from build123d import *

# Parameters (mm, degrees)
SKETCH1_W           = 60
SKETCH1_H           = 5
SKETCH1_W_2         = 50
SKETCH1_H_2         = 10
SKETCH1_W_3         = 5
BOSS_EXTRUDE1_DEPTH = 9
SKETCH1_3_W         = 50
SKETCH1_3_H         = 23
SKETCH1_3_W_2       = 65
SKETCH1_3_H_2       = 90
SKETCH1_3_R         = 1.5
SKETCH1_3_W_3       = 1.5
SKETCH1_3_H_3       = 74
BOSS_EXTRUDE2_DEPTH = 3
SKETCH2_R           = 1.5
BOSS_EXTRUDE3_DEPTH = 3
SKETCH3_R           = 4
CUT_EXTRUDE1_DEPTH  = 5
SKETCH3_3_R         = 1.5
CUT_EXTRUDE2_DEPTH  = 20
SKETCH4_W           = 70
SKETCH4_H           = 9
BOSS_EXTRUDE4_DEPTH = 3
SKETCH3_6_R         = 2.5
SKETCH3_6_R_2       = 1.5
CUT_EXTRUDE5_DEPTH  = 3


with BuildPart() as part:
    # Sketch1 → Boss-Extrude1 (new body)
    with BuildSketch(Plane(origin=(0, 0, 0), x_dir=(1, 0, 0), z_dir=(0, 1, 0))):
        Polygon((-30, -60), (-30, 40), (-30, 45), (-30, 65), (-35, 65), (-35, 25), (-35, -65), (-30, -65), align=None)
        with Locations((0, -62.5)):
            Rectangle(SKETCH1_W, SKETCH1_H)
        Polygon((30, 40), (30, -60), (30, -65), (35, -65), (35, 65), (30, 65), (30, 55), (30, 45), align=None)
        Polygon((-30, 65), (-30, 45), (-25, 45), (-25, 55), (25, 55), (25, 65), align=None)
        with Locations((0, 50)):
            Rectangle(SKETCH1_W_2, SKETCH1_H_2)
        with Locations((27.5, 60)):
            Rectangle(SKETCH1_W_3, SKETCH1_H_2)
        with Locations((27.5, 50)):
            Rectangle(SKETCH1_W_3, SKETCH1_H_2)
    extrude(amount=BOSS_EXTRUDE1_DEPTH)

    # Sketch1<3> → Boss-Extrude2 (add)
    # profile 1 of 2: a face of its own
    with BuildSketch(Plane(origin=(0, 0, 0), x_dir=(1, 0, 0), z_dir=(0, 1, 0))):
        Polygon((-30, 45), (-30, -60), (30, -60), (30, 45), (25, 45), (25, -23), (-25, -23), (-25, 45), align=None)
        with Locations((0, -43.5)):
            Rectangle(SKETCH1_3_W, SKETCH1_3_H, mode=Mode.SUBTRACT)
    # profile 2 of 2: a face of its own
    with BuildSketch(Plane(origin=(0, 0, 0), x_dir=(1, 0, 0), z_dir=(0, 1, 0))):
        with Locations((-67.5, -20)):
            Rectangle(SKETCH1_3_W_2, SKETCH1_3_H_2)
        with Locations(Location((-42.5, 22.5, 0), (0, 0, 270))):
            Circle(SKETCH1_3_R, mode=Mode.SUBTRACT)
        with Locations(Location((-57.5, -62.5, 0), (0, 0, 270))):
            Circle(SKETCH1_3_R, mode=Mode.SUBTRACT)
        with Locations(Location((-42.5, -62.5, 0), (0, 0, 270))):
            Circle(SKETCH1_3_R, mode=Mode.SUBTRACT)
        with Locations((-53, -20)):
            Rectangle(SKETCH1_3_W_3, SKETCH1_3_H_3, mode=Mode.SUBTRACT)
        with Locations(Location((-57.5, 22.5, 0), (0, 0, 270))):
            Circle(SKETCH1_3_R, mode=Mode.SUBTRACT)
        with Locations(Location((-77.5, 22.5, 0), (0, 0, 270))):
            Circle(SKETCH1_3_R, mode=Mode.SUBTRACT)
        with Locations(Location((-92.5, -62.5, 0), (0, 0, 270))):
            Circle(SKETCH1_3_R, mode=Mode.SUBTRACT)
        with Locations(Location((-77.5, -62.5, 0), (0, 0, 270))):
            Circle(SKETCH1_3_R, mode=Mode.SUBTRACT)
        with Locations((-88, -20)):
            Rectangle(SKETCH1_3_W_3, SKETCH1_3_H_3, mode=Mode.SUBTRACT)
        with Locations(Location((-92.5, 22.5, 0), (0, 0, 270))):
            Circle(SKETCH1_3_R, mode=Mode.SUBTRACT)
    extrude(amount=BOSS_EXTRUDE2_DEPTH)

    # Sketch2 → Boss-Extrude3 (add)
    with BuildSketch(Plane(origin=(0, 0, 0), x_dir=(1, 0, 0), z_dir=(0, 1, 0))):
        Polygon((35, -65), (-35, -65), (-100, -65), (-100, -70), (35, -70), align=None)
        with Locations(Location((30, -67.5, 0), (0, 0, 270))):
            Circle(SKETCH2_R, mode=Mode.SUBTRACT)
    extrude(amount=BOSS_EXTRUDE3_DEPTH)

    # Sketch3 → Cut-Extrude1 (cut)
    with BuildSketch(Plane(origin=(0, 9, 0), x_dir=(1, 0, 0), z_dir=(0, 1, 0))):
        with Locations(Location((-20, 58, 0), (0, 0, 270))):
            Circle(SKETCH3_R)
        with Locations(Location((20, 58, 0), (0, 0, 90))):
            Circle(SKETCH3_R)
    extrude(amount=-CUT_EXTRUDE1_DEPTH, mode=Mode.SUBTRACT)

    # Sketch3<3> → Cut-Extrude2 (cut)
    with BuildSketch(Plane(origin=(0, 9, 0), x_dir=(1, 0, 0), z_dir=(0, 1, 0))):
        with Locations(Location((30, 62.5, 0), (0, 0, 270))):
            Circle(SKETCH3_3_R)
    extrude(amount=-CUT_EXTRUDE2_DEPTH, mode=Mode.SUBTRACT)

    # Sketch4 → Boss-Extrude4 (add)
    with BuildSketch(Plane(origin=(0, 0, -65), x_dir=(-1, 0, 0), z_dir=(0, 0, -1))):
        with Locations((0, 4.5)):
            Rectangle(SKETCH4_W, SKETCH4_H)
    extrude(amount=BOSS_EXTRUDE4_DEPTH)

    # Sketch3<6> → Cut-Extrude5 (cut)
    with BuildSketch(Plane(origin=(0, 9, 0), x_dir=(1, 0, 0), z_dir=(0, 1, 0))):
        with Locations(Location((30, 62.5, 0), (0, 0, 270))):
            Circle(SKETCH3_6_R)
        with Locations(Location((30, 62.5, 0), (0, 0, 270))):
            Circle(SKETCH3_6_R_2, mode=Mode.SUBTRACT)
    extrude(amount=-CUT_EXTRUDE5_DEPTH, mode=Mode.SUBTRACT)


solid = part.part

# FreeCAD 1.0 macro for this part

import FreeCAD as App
import Part
import Sketcher
Q = App.Units.Quantity


def add_polygon(sketch, points):
    """Adds a closed chain of lines whose ends are joined by coincident constraints."""
    first, n = sketch.GeometryCount, len(points)
    for a, b in zip(points, points[1:] + points[:1]):
        sketch.addGeometry(Part.LineSegment(App.Vector(*a, 0), App.Vector(*b, 0)), False)
    for i in range(n):
        sketch.addConstraint(Sketcher.Constraint("Coincident", first + i, 2, first + (i + 1) % n, 1))

doc = App.newDocument("Part")
params = doc.addObject("Spreadsheet::Sheet", "Params")
for row, (alias, value) in enumerate([
    ("sketch1_width", "70 mm"),
    ("sketch1_width2", "60 mm"),
    ("sketch1_height", "130 mm"),
    ("sketch1_height2", "105 mm"),
    ("pad1_length", "9 mm"),
    ("sketch2_diameter", "3 mm"),
    ("sketch2_width", "60 mm"),
    ("sketch2_width2", "5 mm"),
    ("sketch2_width3", "65 mm"),
    ("sketch2_height", "105 mm"),
    ("pad2_length", "3 mm"),
    ("sketch3_diameter", "3 mm"),
    ("sketch3_width", "135 mm"),
    ("sketch3_height", "5 mm"),
    ("pad3_length", "3 mm"),
    ("sketch4_diameter", "8 mm"),
    ("pocket1_length", "5 mm"),
    ("sketch5_diameter", "3 mm"),
    ("pocket2_length", "20 mm"),
    ("sketch6_width", "70 mm"),
    ("sketch6_height", "9 mm"),
    ("pad4_length", "3 mm"),
    ("sketch7_diameter", "5 mm"),
    ("sketch7_diameter2", "3 mm"),
    ("pocket3_length", "3 mm"),
], start=1):
    params.set(f"A{row}", alias)
    params.set(f"B{row}", "=" + value)
    params.setAlias(f"B{row}", alias)

body = doc.addObject("PartDesign::Body", "Body")

sketch1 = body.newObject("Sketcher::SketchObject", "Sketch")
sketch1.AttachmentSupport = (doc.getObject("XZ_Plane"), [""])
sketch1.MapMode = "FlatFace"
add_polygon(sketch1, [(-35, -65), (-35, 65), (35, 65), (35, -65)])
add_polygon(sketch1, [(30, -45), (30, 60), (-30, 60), (-30, -45)])
sketch1.addConstraint([
    Sketcher.Constraint("Vertical", 0),
    Sketcher.Constraint("Horizontal", 1),
    Sketcher.Constraint("Vertical", 2),
    Sketcher.Constraint("Horizontal", 3),
    Sketcher.Constraint("Vertical", 4),
    Sketcher.Constraint("Horizontal", 5),
    Sketcher.Constraint("Vertical", 6),
    Sketcher.Constraint("Horizontal", 7),
    Sketcher.Constraint("Symmetric", 0, 2, 2, 2, -1, 1),
    Sketcher.Constraint("DistanceX", 1, 1, 1, 2, Q("70 mm")),
    Sketcher.Constraint("DistanceX", 5, 2, 5, 1, Q("60 mm")),
    Sketcher.Constraint("DistanceY", 0, 1, 0, 2, Q("130 mm")),
    Sketcher.Constraint("DistanceY", 4, 1, 4, 2, Q("105 mm")),
    Sketcher.Constraint("DistanceX", -1, 1, 4, 2, Q("30 mm")),
    Sketcher.Constraint("DistanceY", -1, 1, 4, 2, Q("60 mm")),
])
sketch1.setExpression("Constraints[17]", "Params.sketch1_width")
sketch1.setExpression("Constraints[18]", "Params.sketch1_width2")
sketch1.setExpression("Constraints[19]", "Params.sketch1_height")
sketch1.setExpression("Constraints[20]", "Params.sketch1_height2")
pad1 = body.newObject("PartDesign::Pad", "Pad")
pad1.Profile = sketch1
pad1.setExpression("Length", "Params.pad1_length")
pad1.Reversed = True

sketch2 = body.newObject("Sketcher::SketchObject", "Sketch001")
sketch2.AttachmentSupport = (doc.getObject("XZ_Plane"), [""])
sketch2.MapMode = "FlatFace"
add_polygon(sketch2, [(-30, -45), (-30, 60), (30, 60), (30, -45), (25, -45), (25, 23), (-25, 23), (-25, -45)])
add_polygon(sketch2, [(25, 55), (-25, 55), (-25, 32), (25, 32)])
add_polygon(sketch2, [(-100, -25), (-100, 65), (-35, 65), (-35, -25)])
sketch2.addGeometry(Part.Circle(App.Vector(-92.5, 62.5, 0), App.Vector(0, 0, 1), 1.5), False)
sketch2.addGeometry(Part.Circle(App.Vector(-77.5, 62.5, 0), App.Vector(0, 0, 1), 1.5), False)
sketch2.addGeometry(Part.Circle(App.Vector(-57.5, 62.5, 0), App.Vector(0, 0, 1), 1.5), False)
sketch2.addGeometry(Part.Circle(App.Vector(-42.5, 62.5, 0), App.Vector(0, 0, 1), 1.5), False)
add_polygon(sketch2, [(-87.2, 57), (-88.8, 57), (-88.8, -17), (-87.2, -17)])
sketch2.addGeometry(Part.Circle(App.Vector(-92.5, -22.5, 0), App.Vector(0, 0, 1), 1.5), False)
sketch2.addGeometry(Part.Circle(App.Vector(-77.5, -22.5, 0), App.Vector(0, 0, 1), 1.5), False)
add_polygon(sketch2, [(-52.2, 57), (-53.8, 57), (-53.8, -17), (-52.2, -17)])
sketch2.addGeometry(Part.Circle(App.Vector(-57.5, -22.5, 0), App.Vector(0, 0, 1), 1.5), False)
sketch2.addGeometry(Part.Circle(App.Vector(-42.5, -22.5, 0), App.Vector(0, 0, 1), 1.5), False)
sketch2.addConstraint([
    Sketcher.Constraint("Vertical", 0),
    Sketcher.Constraint("Horizontal", 1),
    Sketcher.Constraint("Vertical", 2),
    Sketcher.Constraint("Horizontal", 3),
    Sketcher.Constraint("Vertical", 4),
    Sketcher.Constraint("Horizontal", 5),
    Sketcher.Constraint("Vertical", 6),
    Sketcher.Constraint("Horizontal", 7),
    Sketcher.Constraint("Horizontal", 8),
    Sketcher.Constraint("Vertical", 9),
    Sketcher.Constraint("Horizontal", 10),
    Sketcher.Constraint("Vertical", 11),
    Sketcher.Constraint("Vertical", 12),
    Sketcher.Constraint("Horizontal", 13),
    Sketcher.Constraint("Vertical", 14),
    Sketcher.Constraint("Horizontal", 15),
    Sketcher.Constraint("Horizontal", 20),
    Sketcher.Constraint("Vertical", 21),
    Sketcher.Constraint("Horizontal", 22),
    Sketcher.Constraint("Vertical", 23),
    Sketcher.Constraint("Horizontal", 26),
    Sketcher.Constraint("Vertical", 27),
    Sketcher.Constraint("Horizontal", 28),
    Sketcher.Constraint("Vertical", 29),
    Sketcher.Constraint("Equal", 16, 17),
    Sketcher.Constraint("Equal", 17, 18),
    Sketcher.Constraint("Equal", 18, 19),
    Sketcher.Constraint("Equal", 19, 24),
    Sketcher.Constraint("Equal", 24, 25),
    Sketcher.Constraint("Equal", 25, 30),
    Sketcher.Constraint("Equal", 30, 31),
    Sketcher.Constraint("Symmetric", 3, 2, 6, 2, -2),
    Sketcher.Constraint("Horizontal", 16, 3, 17, 3),
    Sketcher.Constraint("Horizontal", 17, 3, 18, 3),
    Sketcher.Constraint("Horizontal", 18, 3, 19, 3),
    Sketcher.Constraint("Horizontal", 24, 3, 25, 3),
    Sketcher.Constraint("Horizontal", 25, 3, 30, 3),
    Sketcher.Constraint("Horizontal", 30, 3, 31, 3),
    Sketcher.Constraint("Horizontal", 23, 2, 26, 2),
    Sketcher.Constraint("Horizontal", 22, 2, 27, 2),
    Sketcher.Constraint("Vertical", 16, 3, 24, 3),
    Sketcher.Constraint("Vertical", 17, 3, 25, 3),
    Sketcher.Constraint("Vertical", 18, 3, 30, 3),
    Sketcher.Constraint("Vertical", 19, 3, 31, 3),
    Sketcher.Constraint("Vertical", 6, 2, 8, 2),
    Sketcher.Constraint("Vertical", 4, 2, 10, 2),
    Sketcher.Constraint("Equal", 3, 7),
    Sketcher.Constraint("Equal", 22, 26),
    Sketcher.Constraint("Diameter", 16, Q("3 mm")),
    Sketcher.Constraint("DistanceX", 1, 1, 1, 2, Q("60 mm")),
    Sketcher.Constraint("DistanceX", 3, 2, 3, 1, Q("5 mm")),
    Sketcher.Constraint("DistanceX", 13, 1, 13, 2, Q("65 mm")),
    Sketcher.Constraint("DistanceY", 0, 1, 0, 2, Q("105 mm")),
    Sketcher.Constraint("DistanceY", 4, 1, 4, 2, Q("68 mm")),
    Sketcher.Constraint("DistanceY", 9, 2, 9, 1, Q("23 mm")),
    Sketcher.Constraint("DistanceY", 12, 1, 12, 2, Q("90 mm")),
    Sketcher.Constraint("DistanceY", 21, 2, 21, 1, Q("74 mm")),
    Sketcher.Constraint("DistanceX", 20, 2, 20, 1, Q("1.5 mm")),
    Sketcher.Constraint("DistanceY", -1, 1, 0, 2, Q("60 mm")),
    Sketcher.Constraint("DistanceY", -1, 1, 8, 2, Q("55 mm")),
    Sketcher.Constraint("DistanceX", 12, 2, -1, 1, Q("100 mm")),
    Sketcher.Constraint("DistanceY", -1, 1, 12, 2, Q("65 mm")),
    Sketcher.Constraint("DistanceY", -1, 1, 20, 2, Q("57 mm")),
    Sketcher.Constraint("DistanceX", 16, 3, 17, 3, Q("15 mm")),
    Sketcher.Constraint("DistanceX", 17, 3, 18, 3, Q("20 mm")),
    Sketcher.Constraint("DistanceX", 18, 3, 19, 3, Q("15 mm")),
    Sketcher.Constraint("DistanceY", 24, 3, 16, 3, Q("85 mm")),
    Sketcher.Constraint("DistanceX", 16, 3, -1, 1, Q("92.5 mm")),
    Sketcher.Constraint("DistanceY", -1, 1, 16, 3, Q("62.5 mm")),
    Sketcher.Constraint("DistanceX", 22, 2, 27, 2, Q("33.5 mm")),
    Sketcher.Constraint("DistanceX", 20, 2, -1, 1, Q("88.75 mm")),
])
sketch2.setExpression("Constraints[72]", "Params.sketch2_diameter")
sketch2.setExpression("Constraints[73]", "Params.sketch2_width")
sketch2.setExpression("Constraints[74]", "Params.sketch2_width2")
sketch2.setExpression("Constraints[75]", "Params.sketch2_width3")
sketch2.setExpression("Constraints[76]", "Params.sketch2_height")
pad2 = body.newObject("PartDesign::Pad", "Pad001")
pad2.Profile = sketch2
pad2.setExpression("Length", "Params.pad2_length")
pad2.Reversed = True

sketch3 = body.newObject("Sketcher::SketchObject", "Sketch002")
sketch3.AttachmentSupport = (doc.getObject("XZ_Plane"), [""])
sketch3.MapMode = "FlatFace"
add_polygon(sketch3, [(35, 65), (-100, 65), (-100, 70), (35, 70)])
sketch3.addGeometry(Part.Circle(App.Vector(30, 67.5, 0), App.Vector(0, 0, 1), 1.5), False)
sketch3.addConstraint([
    Sketcher.Constraint("Horizontal", 0),
    Sketcher.Constraint("Vertical", 1),
    Sketcher.Constraint("Horizontal", 2),
    Sketcher.Constraint("Vertical", 3),
    Sketcher.Constraint("Diameter", 4, Q("3 mm")),
    Sketcher.Constraint("DistanceX", 0, 2, 0, 1, Q("135 mm")),
    Sketcher.Constraint("DistanceY", 1, 1, 1, 2, Q("5 mm")),
    Sketcher.Constraint("DistanceX", -1, 1, 4, 3, Q("30 mm")),
    Sketcher.Constraint("DistanceX", 0, 2, -1, 1, Q("100 mm")),
    Sketcher.Constraint("DistanceY", -1, 1, 0, 2, Q("65 mm")),
    Sketcher.Constraint("DistanceY", -1, 1, 4, 3, Q("67.5 mm")),
])
sketch3.setExpression("Constraints[8]", "Params.sketch3_diameter")
sketch3.setExpression("Constraints[9]", "Params.sketch3_width")
sketch3.setExpression("Constraints[10]", "Params.sketch3_height")
pad3 = body.newObject("PartDesign::Pad", "Pad002")
pad3.Profile = sketch3
pad3.setExpression("Length", "Params.pad3_length")
pad3.Reversed = True

sketch4 = body.newObject("Sketcher::SketchObject", "Sketch003")
sketch4.AttachmentSupport = (doc.getObject("XZ_Plane"), [""])
sketch4.MapMode = "FlatFace"
sketch4.AttachmentOffset = App.Placement(App.Vector(0, 0, -9), App.Rotation())
sketch4.addGeometry([
    Part.Circle(App.Vector(-20, -58, 0), App.Vector(0, 0, 1), 4),
    Part.Circle(App.Vector(20, -58, 0), App.Vector(0, 0, 1), 4),
], False)
sketch4.addConstraint([
    Sketcher.Constraint("Equal", 0, 1),
    Sketcher.Constraint("Symmetric", 0, 3, 1, 3, -2),
    Sketcher.Constraint("Diameter", 0, Q("8 mm")),
    Sketcher.Constraint("DistanceX", 0, 3, -1, 1, Q("20 mm")),
    Sketcher.Constraint("DistanceY", 0, 3, -1, 1, Q("58 mm")),
])
sketch4.setExpression("Constraints[2]", "Params.sketch4_diameter")
pocket1 = body.newObject("PartDesign::Pocket", "Pocket")
pocket1.Profile = sketch4
pocket1.setExpression("Length", "Params.pocket1_length")
pocket1.Reversed = True

sketch5 = body.newObject("Sketcher::SketchObject", "Sketch004")
sketch5.AttachmentSupport = (doc.getObject("XZ_Plane"), [""])
sketch5.MapMode = "FlatFace"
sketch5.AttachmentOffset = App.Placement(App.Vector(0, 0, -9), App.Rotation())
sketch5.addGeometry(Part.Circle(App.Vector(30, -62.5, 0), App.Vector(0, 0, 1), 1.5), False)
sketch5.addConstraint([
    Sketcher.Constraint("Diameter", 0, Q("3 mm")),
    Sketcher.Constraint("DistanceX", -1, 1, 0, 3, Q("30 mm")),
    Sketcher.Constraint("DistanceY", 0, 3, -1, 1, Q("62.5 mm")),
])
sketch5.setExpression("Constraints[0]", "Params.sketch5_diameter")
pocket2 = body.newObject("PartDesign::Pocket", "Pocket001")
pocket2.Profile = sketch5
pocket2.setExpression("Length", "Params.pocket2_length")
pocket2.Reversed = True

sketch6 = body.newObject("Sketcher::SketchObject", "Sketch005")
sketch6.AttachmentSupport = (doc.getObject("XY_Plane"), [""])
sketch6.MapMode = "FlatFace"
sketch6.AttachmentOffset = App.Placement(App.Vector(0, 0, -65), App.Rotation())
add_polygon(sketch6, [(35, 9), (35, 0), (-35, 0), (-35, 9)])
sketch6.addConstraint([
    Sketcher.Constraint("Vertical", 0),
    Sketcher.Constraint("Horizontal", 1),
    Sketcher.Constraint("Vertical", 2),
    Sketcher.Constraint("Horizontal", 3),
    Sketcher.Constraint("Symmetric", 0, 2, 1, 2, -1, 1),
    Sketcher.Constraint("DistanceX", 1, 2, 1, 1, Q("70 mm")),
    Sketcher.Constraint("DistanceY", 0, 2, 0, 1, Q("9 mm")),
])
sketch6.setExpression("Constraints[9]", "Params.sketch6_width")
sketch6.setExpression("Constraints[10]", "Params.sketch6_height")
pad4 = body.newObject("PartDesign::Pad", "Pad003")
pad4.Profile = sketch6
pad4.setExpression("Length", "Params.pad4_length")
pad4.Reversed = True

sketch7 = body.newObject("Sketcher::SketchObject", "Sketch006")
sketch7.AttachmentSupport = (doc.getObject("XZ_Plane"), [""])
sketch7.MapMode = "FlatFace"
sketch7.AttachmentOffset = App.Placement(App.Vector(0, 0, -9), App.Rotation())
sketch7.addGeometry([
    Part.Circle(App.Vector(30, -62.5, 0), App.Vector(0, 0, 1), 2.5),
    Part.Circle(App.Vector(30, -62.5, 0), App.Vector(0, 0, 1), 1.5),
], False)
sketch7.addConstraint([
    Sketcher.Constraint("Coincident", 1, 3, 0, 3),
    Sketcher.Constraint("Diameter", 0, Q("5 mm")),
    Sketcher.Constraint("Diameter", 1, Q("3 mm")),
    Sketcher.Constraint("DistanceX", -1, 1, 0, 3, Q("30 mm")),
    Sketcher.Constraint("DistanceY", 0, 3, -1, 1, Q("62.5 mm")),
])
sketch7.setExpression("Constraints[1]", "Params.sketch7_diameter")
sketch7.setExpression("Constraints[2]", "Params.sketch7_diameter2")
pocket3 = body.newObject("PartDesign::Pocket", "Pocket002")
pocket3.Profile = sketch7
pocket3.setExpression("Length", "Params.pocket3_length")
pocket3.Reversed = True

doc.recompute()
